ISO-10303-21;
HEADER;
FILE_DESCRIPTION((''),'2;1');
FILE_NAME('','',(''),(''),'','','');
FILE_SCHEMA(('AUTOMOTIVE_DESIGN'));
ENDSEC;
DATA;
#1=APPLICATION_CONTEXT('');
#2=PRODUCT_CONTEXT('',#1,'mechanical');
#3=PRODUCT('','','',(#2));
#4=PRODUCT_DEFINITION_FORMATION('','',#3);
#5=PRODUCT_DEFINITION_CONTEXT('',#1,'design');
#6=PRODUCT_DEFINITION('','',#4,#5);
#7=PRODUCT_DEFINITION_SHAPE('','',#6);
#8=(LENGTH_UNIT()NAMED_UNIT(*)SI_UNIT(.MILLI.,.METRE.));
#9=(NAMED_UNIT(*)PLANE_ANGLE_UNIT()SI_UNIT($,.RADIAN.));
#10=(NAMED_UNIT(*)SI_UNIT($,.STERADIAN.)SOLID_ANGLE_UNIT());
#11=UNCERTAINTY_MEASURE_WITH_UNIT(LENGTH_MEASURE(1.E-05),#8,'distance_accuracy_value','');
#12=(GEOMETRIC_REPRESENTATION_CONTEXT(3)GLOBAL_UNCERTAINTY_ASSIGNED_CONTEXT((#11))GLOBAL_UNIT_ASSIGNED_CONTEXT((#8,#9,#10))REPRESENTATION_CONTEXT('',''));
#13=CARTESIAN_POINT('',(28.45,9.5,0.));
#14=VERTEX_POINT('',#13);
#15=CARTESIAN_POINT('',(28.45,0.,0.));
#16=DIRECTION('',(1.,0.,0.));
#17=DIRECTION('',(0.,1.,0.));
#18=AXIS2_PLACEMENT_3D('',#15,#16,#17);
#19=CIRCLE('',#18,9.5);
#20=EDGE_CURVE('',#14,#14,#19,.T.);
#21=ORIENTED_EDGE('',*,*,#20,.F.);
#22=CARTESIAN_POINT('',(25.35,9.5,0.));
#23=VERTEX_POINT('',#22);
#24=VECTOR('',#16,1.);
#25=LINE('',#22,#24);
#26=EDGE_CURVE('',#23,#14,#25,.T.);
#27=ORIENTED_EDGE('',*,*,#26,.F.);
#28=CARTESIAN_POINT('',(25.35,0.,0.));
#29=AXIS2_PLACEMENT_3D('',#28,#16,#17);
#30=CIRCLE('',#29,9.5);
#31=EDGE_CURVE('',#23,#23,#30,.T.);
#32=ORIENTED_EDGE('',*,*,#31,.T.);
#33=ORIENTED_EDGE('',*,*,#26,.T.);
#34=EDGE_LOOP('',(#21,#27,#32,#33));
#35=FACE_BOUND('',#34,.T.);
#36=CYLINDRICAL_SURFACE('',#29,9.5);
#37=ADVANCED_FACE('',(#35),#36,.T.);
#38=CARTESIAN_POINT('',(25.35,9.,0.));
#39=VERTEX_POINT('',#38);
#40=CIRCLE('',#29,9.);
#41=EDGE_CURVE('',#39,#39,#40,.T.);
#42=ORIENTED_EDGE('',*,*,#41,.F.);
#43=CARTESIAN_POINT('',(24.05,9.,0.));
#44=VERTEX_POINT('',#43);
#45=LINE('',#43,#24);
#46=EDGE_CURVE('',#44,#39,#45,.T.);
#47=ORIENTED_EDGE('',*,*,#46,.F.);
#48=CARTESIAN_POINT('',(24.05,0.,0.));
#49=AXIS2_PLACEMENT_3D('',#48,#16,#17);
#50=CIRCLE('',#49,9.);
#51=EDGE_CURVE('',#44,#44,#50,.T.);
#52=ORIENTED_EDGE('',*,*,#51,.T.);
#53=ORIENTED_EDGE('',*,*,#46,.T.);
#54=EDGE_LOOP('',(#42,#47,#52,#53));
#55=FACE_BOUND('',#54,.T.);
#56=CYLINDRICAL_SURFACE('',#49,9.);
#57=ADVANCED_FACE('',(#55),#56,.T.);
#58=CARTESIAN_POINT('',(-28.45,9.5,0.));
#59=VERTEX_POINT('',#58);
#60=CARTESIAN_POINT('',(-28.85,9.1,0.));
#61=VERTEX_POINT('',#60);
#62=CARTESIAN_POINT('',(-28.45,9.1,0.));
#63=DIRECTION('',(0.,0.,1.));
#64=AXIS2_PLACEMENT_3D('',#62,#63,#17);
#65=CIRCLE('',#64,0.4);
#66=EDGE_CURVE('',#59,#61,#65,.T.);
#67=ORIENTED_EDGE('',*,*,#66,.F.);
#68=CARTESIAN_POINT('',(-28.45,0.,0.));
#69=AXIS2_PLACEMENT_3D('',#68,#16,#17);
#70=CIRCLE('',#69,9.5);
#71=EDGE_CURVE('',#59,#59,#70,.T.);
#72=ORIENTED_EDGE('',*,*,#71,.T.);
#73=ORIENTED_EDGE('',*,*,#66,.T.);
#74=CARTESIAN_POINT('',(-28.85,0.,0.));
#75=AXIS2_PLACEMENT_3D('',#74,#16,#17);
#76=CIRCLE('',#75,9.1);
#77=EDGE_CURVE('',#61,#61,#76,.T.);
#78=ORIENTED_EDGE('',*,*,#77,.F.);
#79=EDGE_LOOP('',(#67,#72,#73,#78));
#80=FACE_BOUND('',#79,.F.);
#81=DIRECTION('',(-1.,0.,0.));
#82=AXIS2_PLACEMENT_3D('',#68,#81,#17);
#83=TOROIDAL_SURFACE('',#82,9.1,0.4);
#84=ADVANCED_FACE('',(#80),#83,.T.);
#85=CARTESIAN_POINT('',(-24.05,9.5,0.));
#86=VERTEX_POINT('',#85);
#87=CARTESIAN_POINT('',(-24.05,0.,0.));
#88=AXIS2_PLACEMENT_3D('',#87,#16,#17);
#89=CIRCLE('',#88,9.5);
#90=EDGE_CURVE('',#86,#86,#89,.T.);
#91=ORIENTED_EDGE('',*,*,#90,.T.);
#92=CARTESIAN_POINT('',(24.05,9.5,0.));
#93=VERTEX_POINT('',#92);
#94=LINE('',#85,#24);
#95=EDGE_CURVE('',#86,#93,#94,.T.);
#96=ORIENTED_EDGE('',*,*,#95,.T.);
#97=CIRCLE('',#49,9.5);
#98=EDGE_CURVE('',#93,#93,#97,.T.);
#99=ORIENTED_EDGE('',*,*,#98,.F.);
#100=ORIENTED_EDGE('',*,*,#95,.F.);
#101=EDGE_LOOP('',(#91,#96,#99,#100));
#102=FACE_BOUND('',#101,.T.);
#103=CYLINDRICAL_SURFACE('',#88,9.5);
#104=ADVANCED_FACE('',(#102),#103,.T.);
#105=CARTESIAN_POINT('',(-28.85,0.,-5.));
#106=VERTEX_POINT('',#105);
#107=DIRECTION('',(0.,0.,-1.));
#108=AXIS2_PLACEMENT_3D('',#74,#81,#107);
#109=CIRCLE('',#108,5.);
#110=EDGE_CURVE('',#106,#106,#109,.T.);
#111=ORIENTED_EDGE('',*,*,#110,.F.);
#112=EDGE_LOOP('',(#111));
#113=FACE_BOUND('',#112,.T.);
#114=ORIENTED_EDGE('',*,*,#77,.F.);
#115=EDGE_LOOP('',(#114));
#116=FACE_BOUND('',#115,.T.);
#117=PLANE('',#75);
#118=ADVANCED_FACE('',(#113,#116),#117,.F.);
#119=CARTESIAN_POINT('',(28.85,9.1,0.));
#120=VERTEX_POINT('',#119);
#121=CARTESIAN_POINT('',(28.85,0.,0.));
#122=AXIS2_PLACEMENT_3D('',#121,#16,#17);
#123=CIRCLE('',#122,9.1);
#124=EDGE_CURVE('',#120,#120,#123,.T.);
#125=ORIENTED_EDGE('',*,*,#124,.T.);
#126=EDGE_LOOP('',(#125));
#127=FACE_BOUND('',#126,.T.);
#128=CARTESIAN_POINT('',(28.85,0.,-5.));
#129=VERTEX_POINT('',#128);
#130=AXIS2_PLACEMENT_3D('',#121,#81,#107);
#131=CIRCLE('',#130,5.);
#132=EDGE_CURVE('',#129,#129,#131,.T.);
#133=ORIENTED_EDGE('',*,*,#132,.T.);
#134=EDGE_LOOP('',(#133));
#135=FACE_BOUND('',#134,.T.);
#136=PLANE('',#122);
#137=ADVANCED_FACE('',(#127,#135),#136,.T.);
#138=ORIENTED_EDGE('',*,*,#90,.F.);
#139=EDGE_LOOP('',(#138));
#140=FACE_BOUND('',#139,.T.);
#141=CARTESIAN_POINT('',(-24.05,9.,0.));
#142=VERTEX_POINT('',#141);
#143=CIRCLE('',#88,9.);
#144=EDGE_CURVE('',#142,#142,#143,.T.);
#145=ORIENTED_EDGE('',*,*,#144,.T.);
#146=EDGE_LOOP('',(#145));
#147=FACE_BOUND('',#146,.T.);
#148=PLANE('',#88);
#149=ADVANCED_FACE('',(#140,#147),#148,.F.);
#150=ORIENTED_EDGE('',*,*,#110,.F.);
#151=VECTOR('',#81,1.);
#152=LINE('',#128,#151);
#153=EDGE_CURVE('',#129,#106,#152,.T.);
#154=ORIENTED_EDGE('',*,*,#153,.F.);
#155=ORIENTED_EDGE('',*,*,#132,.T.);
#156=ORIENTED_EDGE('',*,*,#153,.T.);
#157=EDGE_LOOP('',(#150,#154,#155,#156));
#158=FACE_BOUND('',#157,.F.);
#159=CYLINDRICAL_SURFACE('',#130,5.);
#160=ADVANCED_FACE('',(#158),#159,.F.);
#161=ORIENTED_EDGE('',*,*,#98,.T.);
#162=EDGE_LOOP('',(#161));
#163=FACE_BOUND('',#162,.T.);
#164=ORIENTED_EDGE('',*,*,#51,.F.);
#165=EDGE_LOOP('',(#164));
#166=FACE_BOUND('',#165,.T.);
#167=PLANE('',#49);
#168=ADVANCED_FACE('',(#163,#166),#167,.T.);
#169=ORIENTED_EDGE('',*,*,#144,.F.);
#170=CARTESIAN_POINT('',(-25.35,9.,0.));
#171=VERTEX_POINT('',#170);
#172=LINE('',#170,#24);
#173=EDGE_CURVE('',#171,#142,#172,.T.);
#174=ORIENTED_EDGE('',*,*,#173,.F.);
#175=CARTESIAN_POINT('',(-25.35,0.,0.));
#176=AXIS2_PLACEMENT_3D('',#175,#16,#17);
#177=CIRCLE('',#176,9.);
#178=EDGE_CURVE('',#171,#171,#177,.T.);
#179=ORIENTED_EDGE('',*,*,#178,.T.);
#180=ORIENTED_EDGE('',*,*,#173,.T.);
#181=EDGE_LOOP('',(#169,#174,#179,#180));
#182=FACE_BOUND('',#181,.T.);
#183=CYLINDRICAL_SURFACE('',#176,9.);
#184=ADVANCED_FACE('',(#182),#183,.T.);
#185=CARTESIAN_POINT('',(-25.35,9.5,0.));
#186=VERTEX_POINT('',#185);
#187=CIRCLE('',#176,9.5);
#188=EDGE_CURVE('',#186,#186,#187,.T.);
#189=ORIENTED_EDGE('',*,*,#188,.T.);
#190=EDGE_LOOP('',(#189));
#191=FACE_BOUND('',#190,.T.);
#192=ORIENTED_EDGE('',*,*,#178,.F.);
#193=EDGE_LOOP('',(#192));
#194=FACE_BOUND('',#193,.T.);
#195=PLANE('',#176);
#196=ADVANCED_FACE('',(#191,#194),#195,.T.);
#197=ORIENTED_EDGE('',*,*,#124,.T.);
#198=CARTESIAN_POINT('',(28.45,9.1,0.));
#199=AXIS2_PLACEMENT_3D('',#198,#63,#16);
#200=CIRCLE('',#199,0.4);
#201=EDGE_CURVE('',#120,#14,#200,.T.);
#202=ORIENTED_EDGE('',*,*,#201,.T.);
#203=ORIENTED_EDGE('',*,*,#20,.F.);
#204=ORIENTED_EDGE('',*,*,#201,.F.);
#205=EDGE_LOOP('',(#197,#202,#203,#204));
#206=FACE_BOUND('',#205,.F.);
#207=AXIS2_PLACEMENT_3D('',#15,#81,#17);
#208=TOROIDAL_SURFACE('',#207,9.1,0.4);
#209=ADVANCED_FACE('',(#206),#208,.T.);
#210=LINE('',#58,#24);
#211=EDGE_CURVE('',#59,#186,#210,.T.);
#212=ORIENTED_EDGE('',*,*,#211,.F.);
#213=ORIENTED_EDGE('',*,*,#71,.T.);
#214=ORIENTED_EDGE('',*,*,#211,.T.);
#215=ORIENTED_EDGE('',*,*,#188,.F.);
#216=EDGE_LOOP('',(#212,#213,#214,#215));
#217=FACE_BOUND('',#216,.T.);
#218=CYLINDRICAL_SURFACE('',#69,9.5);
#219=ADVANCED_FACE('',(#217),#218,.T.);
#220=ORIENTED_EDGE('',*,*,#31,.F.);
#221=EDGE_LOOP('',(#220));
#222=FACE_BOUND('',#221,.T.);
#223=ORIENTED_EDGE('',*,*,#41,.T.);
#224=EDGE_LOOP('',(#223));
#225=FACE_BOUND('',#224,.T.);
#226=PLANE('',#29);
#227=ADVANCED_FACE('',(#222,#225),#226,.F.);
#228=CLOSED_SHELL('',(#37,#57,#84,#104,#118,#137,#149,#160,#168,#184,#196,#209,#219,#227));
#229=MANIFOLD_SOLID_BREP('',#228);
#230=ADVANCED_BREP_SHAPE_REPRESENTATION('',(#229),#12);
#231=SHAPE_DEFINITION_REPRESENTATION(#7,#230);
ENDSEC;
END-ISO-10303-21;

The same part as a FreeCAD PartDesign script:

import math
import FreeCAD as App
import Part
import Sketcher

V = App.Vector
Q = App.Units.Quantity

doc = App.newDocument("Part")
body = doc.addObject("PartDesign::Body", "Body")

# Sketch on XY plane
sketch1 = body.newObject("Sketcher::SketchObject", "Sketch")
sketch1.AttachmentSupport = (doc.getObject("XY_Plane"), [""])
sketch1.MapMode = "FlatFace"
sketch1.addGeometry(Part.LineSegment(V(-28.85, 0, 0), V(28.85, 0, 0)), False)
sketch1.addGeometry(Part.LineSegment(V(28.85, 0, 0), V(28.85, 9.1, 0)), False)
sketch1.addGeometry(Part.ArcOfCircle(Part.Circle(V(28.45, 9.1, 0), V(0, 0, 1), 0.4), math.radians(0), math.radians(90)), False)
sketch1.addGeometry(Part.LineSegment(V(28.45, 9.5, 0), V(25.35, 9.5, 0)), False)
sketch1.addGeometry(Part.LineSegment(V(25.35, 9.5, 0), V(25.35, 9, 0)), False)
sketch1.addGeometry(Part.LineSegment(V(25.35, 9, 0), V(24.05, 9, 0)), False)
sketch1.addGeometry(Part.LineSegment(V(24.05, 9, 0), V(24.05, 9.5, 0)), False)
sketch1.addGeometry(Part.LineSegment(V(24.05, 9.5, 0), V(-24.05, 9.5, 0)), False)
sketch1.addGeometry(Part.LineSegment(V(-24.05, 9.5, 0), V(-24.05, 9, 0)), False)
sketch1.addGeometry(Part.LineSegment(V(-24.05, 9, 0), V(-25.35, 9, 0)), False)
sketch1.addGeometry(Part.LineSegment(V(-25.35, 9, 0), V(-25.35, 9.5, 0)), False)
sketch1.addGeometry(Part.LineSegment(V(-25.35, 9.5, 0), V(-28.45, 9.5, 0)), False)
sketch1.addGeometry(Part.ArcOfCircle(Part.Circle(V(-28.45, 9.1, 0), V(0, 0, 1), 0.4), math.radians(90), math.radians(180)), False)
sketch1.addGeometry(Part.LineSegment(V(-28.85, 9.1, 0), V(-28.85, 0, 0)), False)
sketch1.addConstraint(Sketcher.Constraint("Coincident", 0, 2, 1, 1))
sketch1.addConstraint(Sketcher.Constraint("Tangent", 1, 2, 2, 1))
sketch1.addConstraint(Sketcher.Constraint("Tangent", 2, 2, 3, 1))
sketch1.addConstraint(Sketcher.Constraint("Coincident", 3, 2, 4, 1))
sketch1.addConstraint(Sketcher.Constraint("Coincident", 4, 2, 5, 1))
sketch1.addConstraint(Sketcher.Constraint("Coincident", 5, 2, 6, 1))
sketch1.addConstraint(Sketcher.Constraint("Coincident", 6, 2, 7, 1))
sketch1.addConstraint(Sketcher.Constraint("Coincident", 7, 2, 8, 1))
sketch1.addConstraint(Sketcher.Constraint("Coincident", 8, 2, 9, 1))
sketch1.addConstraint(Sketcher.Constraint("Coincident", 9, 2, 10, 1))
sketch1.addConstraint(Sketcher.Constraint("Coincident", 10, 2, 11, 1))
sketch1.addConstraint(Sketcher.Constraint("Tangent", 11, 2, 12, 1))
sketch1.addConstraint(Sketcher.Constraint("Tangent", 12, 2, 13, 1))
sketch1.addConstraint(Sketcher.Constraint("Coincident", 13, 2, 0, 1))
sketch1.addConstraint(Sketcher.Constraint("Horizontal", 0))
sketch1.addConstraint(Sketcher.Constraint("Vertical", 1))
sketch1.addConstraint(Sketcher.Constraint("Horizontal", 3))
sketch1.addConstraint(Sketcher.Constraint("Vertical", 4))
sketch1.addConstraint(Sketcher.Constraint("Horizontal", 5))
sketch1.addConstraint(Sketcher.Constraint("Vertical", 6))
sketch1.addConstraint(Sketcher.Constraint("Horizontal", 7))
sketch1.addConstraint(Sketcher.Constraint("Vertical", 8))
sketch1.addConstraint(Sketcher.Constraint("Horizontal", 9))
sketch1.addConstraint(Sketcher.Constraint("Vertical", 10))
sketch1.addConstraint(Sketcher.Constraint("Horizontal", 11))
sketch1.addConstraint(Sketcher.Constraint("Vertical", 13))
sketch1.addConstraint(Sketcher.Constraint("Equal", 2, 12))
sketch1.addConstraint(Sketcher.Constraint("Symmetric", 0, 2, 13, 2, -1, 1))
sketch1.addConstraint(Sketcher.Constraint("Symmetric", 5, 2, 8, 2, -2))
sketch1.addConstraint(Sketcher.Constraint("Symmetric", 3, 2, 10, 2, -2))
sketch1.addConstraint(Sketcher.Constraint("Horizontal", 3, 2, 6, 2))
sketch1.addConstraint(Sketcher.Constraint("Radius", 2, Q("0.4 mm")))
sketch1.addConstraint(Sketcher.Constraint("DistanceX", 0, 1, 0, 2, Q("57.7 mm")))
sketch1.addConstraint(Sketcher.Constraint("DistanceX", 3, 2, 3, 1, Q("3.1 mm")))
sketch1.addConstraint(Sketcher.Constraint("DistanceX", 5, 2, 5, 1, Q("1.3 mm")))
sketch1.addConstraint(Sketcher.Constraint("DistanceY", 1, 1, 1, 2, Q("9.1 mm")))
sketch1.addConstraint(Sketcher.Constraint("DistanceY", 4, 2, 4, 1, Q("0.5 mm")))
revolution = body.newObject("PartDesign::Revolution", "Revolution")
revolution.Profile = sketch1
revolution.ReferenceAxis = (sketch1, ["H_Axis"])
revolution.Angle = 360

# Sketch on YZ plane
sketch2 = body.newObject("Sketcher::SketchObject", "Sketch001")
sketch2.AttachmentSupport = (doc.getObject("YZ_Plane"), [""])
sketch2.MapMode = "FlatFace"
sketch2.AttachmentOffset = App.Placement(V(0, 0, 28.85), App.Rotation())
sketch2.addGeometry(Part.Circle(V(0, 0, 0), V(0, 0, 1), 5), False)
sketch2.addConstraint(Sketcher.Constraint("Coincident", 0, 3, -1, 1))
sketch2.addConstraint(Sketcher.Constraint("Diameter", 0, Q("10 mm")))
doc.recompute()
hole = body.newObject("PartDesign::Hole", "Hole")
hole.Profile = sketch2
hole.ThreadType = "None"
hole.Diameter = 10
hole.DepthType = "Dimension"
hole.Depth = 57.7
hole.DrillPoint = "Flat"

doc.recompute()
